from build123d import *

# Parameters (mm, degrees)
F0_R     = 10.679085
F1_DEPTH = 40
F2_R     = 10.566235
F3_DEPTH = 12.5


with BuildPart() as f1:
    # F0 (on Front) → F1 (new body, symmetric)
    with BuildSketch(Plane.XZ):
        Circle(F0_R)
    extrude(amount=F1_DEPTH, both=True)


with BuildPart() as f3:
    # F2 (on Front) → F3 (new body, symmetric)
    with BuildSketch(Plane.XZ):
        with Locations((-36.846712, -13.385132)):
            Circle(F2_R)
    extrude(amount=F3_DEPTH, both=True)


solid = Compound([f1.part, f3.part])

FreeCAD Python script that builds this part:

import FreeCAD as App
import Part
import Sketcher
Q = App.Units.Quantity

doc = App.newDocument("Part")
body = doc.addObject("PartDesign::Body", "Body")

# Sketch on XZ plane
sketch1 = body.newObject("Sketcher::SketchObject", "Sketch")
sketch1.AttachmentSupport = (doc.getObject("XZ_Plane"), [""])
sketch1.MapMode = "FlatFace"
sketch1.addGeometry(Part.Circle(App.Vector(0, 0, 0), App.Vector(0, 0, 1), 11), False)
sketch1.addConstraint([
    Sketcher.Constraint("Coincident", 0, 3, -1, 1),
    Sketcher.Constraint("Diameter", 0, Q("21.35817 mm")),
])
pad1 = body.newObject("PartDesign::Pad", "Pad")
pad1.Profile = sketch1
pad1.Length = 80
pad1.Midplane = True
body2 = doc.addObject("PartDesign::Body", "Body001")

# Sketch on XZ plane
sketch2 = body2.newObject("Sketcher::SketchObject", "Sketch001")
sketch2.AttachmentSupport = (doc.getObject("XZ_Plane001"), [""])
sketch2.MapMode = "FlatFace"
sketch2.addGeometry(Part.Circle(App.Vector(-37, -13, 0), App.Vector(0, 0, 1), 11), False)
sketch2.addConstraint([
    Sketcher.Constraint("Diameter", 0, Q("21.13247 mm")),
    Sketcher.Constraint("DistanceX", 0, 3, -1, 1, Q("36.846712 mm")),
    Sketcher.Constraint("DistanceY", 0, 3, -1, 1, Q("13.385132 mm")),
])
pad2 = body2.newObject("PartDesign::Pad", "Pad001")
pad2.Profile = sketch2
pad2.Length = 25
pad2.Midplane = True

doc.recompute()
